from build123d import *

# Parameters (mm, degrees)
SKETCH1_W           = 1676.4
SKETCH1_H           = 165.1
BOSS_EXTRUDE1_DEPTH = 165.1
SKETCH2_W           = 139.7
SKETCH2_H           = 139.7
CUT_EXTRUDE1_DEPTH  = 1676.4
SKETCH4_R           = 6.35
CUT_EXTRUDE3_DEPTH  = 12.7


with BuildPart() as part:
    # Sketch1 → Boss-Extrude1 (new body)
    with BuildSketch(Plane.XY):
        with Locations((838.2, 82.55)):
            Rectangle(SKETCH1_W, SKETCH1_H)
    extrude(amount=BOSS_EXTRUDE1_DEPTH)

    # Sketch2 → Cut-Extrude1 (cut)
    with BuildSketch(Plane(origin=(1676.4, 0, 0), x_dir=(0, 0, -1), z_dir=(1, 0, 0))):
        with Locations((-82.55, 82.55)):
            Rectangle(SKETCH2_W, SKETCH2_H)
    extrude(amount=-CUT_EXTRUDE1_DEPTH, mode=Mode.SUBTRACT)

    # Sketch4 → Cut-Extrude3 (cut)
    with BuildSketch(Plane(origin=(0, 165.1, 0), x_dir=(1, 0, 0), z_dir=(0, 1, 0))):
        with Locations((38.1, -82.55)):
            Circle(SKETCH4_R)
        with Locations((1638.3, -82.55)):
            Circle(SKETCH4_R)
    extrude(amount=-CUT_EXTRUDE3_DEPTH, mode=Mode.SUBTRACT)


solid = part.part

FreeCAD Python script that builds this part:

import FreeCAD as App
import Part
import Sketcher
Q = App.Units.Quantity

doc = App.newDocument("Part")
body = doc.addObject("PartDesign::Body", "Body")

# Sketch on XY plane
sketch1 = body.newObject("Sketcher::SketchObject", "Sketch")
sketch1.AttachmentSupport = (doc.getObject("XY_Plane"), [""])
sketch1.MapMode = "FlatFace"
sketch1.addGeometry([
    Part.LineSegment(App.Vector(0, 165.1, 0), App.Vector(0, 0, 0)),
    Part.LineSegment(App.Vector(0, 0, 0), App.Vector(1676.4, 0, 0)),
    Part.LineSegment(App.Vector(1676.4, 0, 0), App.Vector(1676.4, 165.1, 0)),
    Part.LineSegment(App.Vector(1676.4, 165.1, 0), App.Vector(0, 165.1, 0)),
], False)
sketch1.addConstraint([
    Sketcher.Constraint("Coincident", 0, 2, 1, 1),
    Sketcher.Constraint("Coincident", 1, 2, 2, 1),
    Sketcher.Constraint("Coincident", 2, 2, 3, 1),
    Sketcher.Constraint("Coincident", 3, 2, 0, 1),
    Sketcher.Constraint("Vertical", 0),
    Sketcher.Constraint("Horizontal", 1),
    Sketcher.Constraint("Vertical", 2),
    Sketcher.Constraint("Horizontal", 3),
    Sketcher.Constraint("Coincident", 0, 2, -1, 1),
    Sketcher.Constraint("DistanceX", 1, 1, 1, 2, Q("66 in")),
    Sketcher.Constraint("DistanceY", 0, 2, 0, 1, Q("6.5 in")),
])
pad1 = body.newObject("PartDesign::Pad", "Pad")
pad1.Profile = sketch1
pad1.Length = Q("6.5 in")

# Sketch on YZ plane
sketch2 = body.newObject("Sketcher::SketchObject", "Sketch001")
sketch2.AttachmentSupport = (doc.getObject("YZ_Plane"), [""])
sketch2.MapMode = "FlatFace"
sketch2.AttachmentOffset = App.Placement(App.Vector(0, 0, 66 * 25.4), App.Rotation())
sketch2.addGeometry([
    Part.LineSegment(App.Vector(152.4, 152.4, 0), App.Vector(12.7, 152.4, 0)),
    Part.LineSegment(App.Vector(12.7, 152.4, 0), App.Vector(12.7, 12.7, 0)),
    Part.LineSegment(App.Vector(12.7, 12.7, 0), App.Vector(152.4, 12.7, 0)),
    Part.LineSegment(App.Vector(152.4, 12.7, 0), App.Vector(152.4, 152.4, 0)),
], False)
sketch2.addConstraint([
    Sketcher.Constraint("Coincident", 0, 2, 1, 1),
    Sketcher.Constraint("Coincident", 1, 2, 2, 1),
    Sketcher.Constraint("Coincident", 2, 2, 3, 1),
    Sketcher.Constraint("Coincident", 3, 2, 0, 1),
    Sketcher.Constraint("Horizontal", 0),
    Sketcher.Constraint("Vertical", 1),
    Sketcher.Constraint("Horizontal", 2),
    Sketcher.Constraint("Vertical", 3),
    Sketcher.Constraint("Equal", 2, 1),
    Sketcher.Constraint("DistanceX", 0, 2, 0, 1, Q("5.5 in")),
    Sketcher.Constraint("DistanceY", -1, 1, 0, 2, Q("6 in")),
    Sketcher.Constraint("DistanceX", -1, 1, 2, 2, Q("6 in")),
])
pocket1 = body.newObject("PartDesign::Pocket", "Pocket")
pocket1.Profile = sketch2
pocket1.Length = Q("66 in")

# Sketch on XZ plane
sketch3 = body.newObject("Sketcher::SketchObject", "Sketch002")
sketch3.AttachmentSupport = (doc.getObject("XZ_Plane"), [""])
sketch3.MapMode = "FlatFace"
sketch3.AttachmentOffset = App.Placement(App.Vector(0, 0, -6.5 * 25.4), App.Rotation())
sketch3.addGeometry([
    Part.Circle(App.Vector(38.1, 82.55, 0), App.Vector(0, 0, 1), 6.35),
    Part.Circle(App.Vector(1638.3, 82.55, 0), App.Vector(0, 0, 1), 6.35),
], False)
sketch3.addConstraint([
    Sketcher.Constraint("Equal", 0, 1),
    Sketcher.Constraint("Horizontal", 0, 3, 1, 3),
    Sketcher.Constraint("Diameter", 0, Q("0.5 in")),
    Sketcher.Constraint("DistanceX", 0, 3, 1, 3, Q("63 in")),
    Sketcher.Constraint("DistanceX", -1, 1, 0, 3, Q("1.5 in")),
    Sketcher.Constraint("DistanceY", -1, 1, 0, 3, Q("3.25 in")),
])
pocket2 = body.newObject("PartDesign::Pocket", "Pocket001")
pocket2.Profile = sketch3
pocket2.Length = Q("0.5 in")
pocket2.Reversed = True

doc.recompute()
